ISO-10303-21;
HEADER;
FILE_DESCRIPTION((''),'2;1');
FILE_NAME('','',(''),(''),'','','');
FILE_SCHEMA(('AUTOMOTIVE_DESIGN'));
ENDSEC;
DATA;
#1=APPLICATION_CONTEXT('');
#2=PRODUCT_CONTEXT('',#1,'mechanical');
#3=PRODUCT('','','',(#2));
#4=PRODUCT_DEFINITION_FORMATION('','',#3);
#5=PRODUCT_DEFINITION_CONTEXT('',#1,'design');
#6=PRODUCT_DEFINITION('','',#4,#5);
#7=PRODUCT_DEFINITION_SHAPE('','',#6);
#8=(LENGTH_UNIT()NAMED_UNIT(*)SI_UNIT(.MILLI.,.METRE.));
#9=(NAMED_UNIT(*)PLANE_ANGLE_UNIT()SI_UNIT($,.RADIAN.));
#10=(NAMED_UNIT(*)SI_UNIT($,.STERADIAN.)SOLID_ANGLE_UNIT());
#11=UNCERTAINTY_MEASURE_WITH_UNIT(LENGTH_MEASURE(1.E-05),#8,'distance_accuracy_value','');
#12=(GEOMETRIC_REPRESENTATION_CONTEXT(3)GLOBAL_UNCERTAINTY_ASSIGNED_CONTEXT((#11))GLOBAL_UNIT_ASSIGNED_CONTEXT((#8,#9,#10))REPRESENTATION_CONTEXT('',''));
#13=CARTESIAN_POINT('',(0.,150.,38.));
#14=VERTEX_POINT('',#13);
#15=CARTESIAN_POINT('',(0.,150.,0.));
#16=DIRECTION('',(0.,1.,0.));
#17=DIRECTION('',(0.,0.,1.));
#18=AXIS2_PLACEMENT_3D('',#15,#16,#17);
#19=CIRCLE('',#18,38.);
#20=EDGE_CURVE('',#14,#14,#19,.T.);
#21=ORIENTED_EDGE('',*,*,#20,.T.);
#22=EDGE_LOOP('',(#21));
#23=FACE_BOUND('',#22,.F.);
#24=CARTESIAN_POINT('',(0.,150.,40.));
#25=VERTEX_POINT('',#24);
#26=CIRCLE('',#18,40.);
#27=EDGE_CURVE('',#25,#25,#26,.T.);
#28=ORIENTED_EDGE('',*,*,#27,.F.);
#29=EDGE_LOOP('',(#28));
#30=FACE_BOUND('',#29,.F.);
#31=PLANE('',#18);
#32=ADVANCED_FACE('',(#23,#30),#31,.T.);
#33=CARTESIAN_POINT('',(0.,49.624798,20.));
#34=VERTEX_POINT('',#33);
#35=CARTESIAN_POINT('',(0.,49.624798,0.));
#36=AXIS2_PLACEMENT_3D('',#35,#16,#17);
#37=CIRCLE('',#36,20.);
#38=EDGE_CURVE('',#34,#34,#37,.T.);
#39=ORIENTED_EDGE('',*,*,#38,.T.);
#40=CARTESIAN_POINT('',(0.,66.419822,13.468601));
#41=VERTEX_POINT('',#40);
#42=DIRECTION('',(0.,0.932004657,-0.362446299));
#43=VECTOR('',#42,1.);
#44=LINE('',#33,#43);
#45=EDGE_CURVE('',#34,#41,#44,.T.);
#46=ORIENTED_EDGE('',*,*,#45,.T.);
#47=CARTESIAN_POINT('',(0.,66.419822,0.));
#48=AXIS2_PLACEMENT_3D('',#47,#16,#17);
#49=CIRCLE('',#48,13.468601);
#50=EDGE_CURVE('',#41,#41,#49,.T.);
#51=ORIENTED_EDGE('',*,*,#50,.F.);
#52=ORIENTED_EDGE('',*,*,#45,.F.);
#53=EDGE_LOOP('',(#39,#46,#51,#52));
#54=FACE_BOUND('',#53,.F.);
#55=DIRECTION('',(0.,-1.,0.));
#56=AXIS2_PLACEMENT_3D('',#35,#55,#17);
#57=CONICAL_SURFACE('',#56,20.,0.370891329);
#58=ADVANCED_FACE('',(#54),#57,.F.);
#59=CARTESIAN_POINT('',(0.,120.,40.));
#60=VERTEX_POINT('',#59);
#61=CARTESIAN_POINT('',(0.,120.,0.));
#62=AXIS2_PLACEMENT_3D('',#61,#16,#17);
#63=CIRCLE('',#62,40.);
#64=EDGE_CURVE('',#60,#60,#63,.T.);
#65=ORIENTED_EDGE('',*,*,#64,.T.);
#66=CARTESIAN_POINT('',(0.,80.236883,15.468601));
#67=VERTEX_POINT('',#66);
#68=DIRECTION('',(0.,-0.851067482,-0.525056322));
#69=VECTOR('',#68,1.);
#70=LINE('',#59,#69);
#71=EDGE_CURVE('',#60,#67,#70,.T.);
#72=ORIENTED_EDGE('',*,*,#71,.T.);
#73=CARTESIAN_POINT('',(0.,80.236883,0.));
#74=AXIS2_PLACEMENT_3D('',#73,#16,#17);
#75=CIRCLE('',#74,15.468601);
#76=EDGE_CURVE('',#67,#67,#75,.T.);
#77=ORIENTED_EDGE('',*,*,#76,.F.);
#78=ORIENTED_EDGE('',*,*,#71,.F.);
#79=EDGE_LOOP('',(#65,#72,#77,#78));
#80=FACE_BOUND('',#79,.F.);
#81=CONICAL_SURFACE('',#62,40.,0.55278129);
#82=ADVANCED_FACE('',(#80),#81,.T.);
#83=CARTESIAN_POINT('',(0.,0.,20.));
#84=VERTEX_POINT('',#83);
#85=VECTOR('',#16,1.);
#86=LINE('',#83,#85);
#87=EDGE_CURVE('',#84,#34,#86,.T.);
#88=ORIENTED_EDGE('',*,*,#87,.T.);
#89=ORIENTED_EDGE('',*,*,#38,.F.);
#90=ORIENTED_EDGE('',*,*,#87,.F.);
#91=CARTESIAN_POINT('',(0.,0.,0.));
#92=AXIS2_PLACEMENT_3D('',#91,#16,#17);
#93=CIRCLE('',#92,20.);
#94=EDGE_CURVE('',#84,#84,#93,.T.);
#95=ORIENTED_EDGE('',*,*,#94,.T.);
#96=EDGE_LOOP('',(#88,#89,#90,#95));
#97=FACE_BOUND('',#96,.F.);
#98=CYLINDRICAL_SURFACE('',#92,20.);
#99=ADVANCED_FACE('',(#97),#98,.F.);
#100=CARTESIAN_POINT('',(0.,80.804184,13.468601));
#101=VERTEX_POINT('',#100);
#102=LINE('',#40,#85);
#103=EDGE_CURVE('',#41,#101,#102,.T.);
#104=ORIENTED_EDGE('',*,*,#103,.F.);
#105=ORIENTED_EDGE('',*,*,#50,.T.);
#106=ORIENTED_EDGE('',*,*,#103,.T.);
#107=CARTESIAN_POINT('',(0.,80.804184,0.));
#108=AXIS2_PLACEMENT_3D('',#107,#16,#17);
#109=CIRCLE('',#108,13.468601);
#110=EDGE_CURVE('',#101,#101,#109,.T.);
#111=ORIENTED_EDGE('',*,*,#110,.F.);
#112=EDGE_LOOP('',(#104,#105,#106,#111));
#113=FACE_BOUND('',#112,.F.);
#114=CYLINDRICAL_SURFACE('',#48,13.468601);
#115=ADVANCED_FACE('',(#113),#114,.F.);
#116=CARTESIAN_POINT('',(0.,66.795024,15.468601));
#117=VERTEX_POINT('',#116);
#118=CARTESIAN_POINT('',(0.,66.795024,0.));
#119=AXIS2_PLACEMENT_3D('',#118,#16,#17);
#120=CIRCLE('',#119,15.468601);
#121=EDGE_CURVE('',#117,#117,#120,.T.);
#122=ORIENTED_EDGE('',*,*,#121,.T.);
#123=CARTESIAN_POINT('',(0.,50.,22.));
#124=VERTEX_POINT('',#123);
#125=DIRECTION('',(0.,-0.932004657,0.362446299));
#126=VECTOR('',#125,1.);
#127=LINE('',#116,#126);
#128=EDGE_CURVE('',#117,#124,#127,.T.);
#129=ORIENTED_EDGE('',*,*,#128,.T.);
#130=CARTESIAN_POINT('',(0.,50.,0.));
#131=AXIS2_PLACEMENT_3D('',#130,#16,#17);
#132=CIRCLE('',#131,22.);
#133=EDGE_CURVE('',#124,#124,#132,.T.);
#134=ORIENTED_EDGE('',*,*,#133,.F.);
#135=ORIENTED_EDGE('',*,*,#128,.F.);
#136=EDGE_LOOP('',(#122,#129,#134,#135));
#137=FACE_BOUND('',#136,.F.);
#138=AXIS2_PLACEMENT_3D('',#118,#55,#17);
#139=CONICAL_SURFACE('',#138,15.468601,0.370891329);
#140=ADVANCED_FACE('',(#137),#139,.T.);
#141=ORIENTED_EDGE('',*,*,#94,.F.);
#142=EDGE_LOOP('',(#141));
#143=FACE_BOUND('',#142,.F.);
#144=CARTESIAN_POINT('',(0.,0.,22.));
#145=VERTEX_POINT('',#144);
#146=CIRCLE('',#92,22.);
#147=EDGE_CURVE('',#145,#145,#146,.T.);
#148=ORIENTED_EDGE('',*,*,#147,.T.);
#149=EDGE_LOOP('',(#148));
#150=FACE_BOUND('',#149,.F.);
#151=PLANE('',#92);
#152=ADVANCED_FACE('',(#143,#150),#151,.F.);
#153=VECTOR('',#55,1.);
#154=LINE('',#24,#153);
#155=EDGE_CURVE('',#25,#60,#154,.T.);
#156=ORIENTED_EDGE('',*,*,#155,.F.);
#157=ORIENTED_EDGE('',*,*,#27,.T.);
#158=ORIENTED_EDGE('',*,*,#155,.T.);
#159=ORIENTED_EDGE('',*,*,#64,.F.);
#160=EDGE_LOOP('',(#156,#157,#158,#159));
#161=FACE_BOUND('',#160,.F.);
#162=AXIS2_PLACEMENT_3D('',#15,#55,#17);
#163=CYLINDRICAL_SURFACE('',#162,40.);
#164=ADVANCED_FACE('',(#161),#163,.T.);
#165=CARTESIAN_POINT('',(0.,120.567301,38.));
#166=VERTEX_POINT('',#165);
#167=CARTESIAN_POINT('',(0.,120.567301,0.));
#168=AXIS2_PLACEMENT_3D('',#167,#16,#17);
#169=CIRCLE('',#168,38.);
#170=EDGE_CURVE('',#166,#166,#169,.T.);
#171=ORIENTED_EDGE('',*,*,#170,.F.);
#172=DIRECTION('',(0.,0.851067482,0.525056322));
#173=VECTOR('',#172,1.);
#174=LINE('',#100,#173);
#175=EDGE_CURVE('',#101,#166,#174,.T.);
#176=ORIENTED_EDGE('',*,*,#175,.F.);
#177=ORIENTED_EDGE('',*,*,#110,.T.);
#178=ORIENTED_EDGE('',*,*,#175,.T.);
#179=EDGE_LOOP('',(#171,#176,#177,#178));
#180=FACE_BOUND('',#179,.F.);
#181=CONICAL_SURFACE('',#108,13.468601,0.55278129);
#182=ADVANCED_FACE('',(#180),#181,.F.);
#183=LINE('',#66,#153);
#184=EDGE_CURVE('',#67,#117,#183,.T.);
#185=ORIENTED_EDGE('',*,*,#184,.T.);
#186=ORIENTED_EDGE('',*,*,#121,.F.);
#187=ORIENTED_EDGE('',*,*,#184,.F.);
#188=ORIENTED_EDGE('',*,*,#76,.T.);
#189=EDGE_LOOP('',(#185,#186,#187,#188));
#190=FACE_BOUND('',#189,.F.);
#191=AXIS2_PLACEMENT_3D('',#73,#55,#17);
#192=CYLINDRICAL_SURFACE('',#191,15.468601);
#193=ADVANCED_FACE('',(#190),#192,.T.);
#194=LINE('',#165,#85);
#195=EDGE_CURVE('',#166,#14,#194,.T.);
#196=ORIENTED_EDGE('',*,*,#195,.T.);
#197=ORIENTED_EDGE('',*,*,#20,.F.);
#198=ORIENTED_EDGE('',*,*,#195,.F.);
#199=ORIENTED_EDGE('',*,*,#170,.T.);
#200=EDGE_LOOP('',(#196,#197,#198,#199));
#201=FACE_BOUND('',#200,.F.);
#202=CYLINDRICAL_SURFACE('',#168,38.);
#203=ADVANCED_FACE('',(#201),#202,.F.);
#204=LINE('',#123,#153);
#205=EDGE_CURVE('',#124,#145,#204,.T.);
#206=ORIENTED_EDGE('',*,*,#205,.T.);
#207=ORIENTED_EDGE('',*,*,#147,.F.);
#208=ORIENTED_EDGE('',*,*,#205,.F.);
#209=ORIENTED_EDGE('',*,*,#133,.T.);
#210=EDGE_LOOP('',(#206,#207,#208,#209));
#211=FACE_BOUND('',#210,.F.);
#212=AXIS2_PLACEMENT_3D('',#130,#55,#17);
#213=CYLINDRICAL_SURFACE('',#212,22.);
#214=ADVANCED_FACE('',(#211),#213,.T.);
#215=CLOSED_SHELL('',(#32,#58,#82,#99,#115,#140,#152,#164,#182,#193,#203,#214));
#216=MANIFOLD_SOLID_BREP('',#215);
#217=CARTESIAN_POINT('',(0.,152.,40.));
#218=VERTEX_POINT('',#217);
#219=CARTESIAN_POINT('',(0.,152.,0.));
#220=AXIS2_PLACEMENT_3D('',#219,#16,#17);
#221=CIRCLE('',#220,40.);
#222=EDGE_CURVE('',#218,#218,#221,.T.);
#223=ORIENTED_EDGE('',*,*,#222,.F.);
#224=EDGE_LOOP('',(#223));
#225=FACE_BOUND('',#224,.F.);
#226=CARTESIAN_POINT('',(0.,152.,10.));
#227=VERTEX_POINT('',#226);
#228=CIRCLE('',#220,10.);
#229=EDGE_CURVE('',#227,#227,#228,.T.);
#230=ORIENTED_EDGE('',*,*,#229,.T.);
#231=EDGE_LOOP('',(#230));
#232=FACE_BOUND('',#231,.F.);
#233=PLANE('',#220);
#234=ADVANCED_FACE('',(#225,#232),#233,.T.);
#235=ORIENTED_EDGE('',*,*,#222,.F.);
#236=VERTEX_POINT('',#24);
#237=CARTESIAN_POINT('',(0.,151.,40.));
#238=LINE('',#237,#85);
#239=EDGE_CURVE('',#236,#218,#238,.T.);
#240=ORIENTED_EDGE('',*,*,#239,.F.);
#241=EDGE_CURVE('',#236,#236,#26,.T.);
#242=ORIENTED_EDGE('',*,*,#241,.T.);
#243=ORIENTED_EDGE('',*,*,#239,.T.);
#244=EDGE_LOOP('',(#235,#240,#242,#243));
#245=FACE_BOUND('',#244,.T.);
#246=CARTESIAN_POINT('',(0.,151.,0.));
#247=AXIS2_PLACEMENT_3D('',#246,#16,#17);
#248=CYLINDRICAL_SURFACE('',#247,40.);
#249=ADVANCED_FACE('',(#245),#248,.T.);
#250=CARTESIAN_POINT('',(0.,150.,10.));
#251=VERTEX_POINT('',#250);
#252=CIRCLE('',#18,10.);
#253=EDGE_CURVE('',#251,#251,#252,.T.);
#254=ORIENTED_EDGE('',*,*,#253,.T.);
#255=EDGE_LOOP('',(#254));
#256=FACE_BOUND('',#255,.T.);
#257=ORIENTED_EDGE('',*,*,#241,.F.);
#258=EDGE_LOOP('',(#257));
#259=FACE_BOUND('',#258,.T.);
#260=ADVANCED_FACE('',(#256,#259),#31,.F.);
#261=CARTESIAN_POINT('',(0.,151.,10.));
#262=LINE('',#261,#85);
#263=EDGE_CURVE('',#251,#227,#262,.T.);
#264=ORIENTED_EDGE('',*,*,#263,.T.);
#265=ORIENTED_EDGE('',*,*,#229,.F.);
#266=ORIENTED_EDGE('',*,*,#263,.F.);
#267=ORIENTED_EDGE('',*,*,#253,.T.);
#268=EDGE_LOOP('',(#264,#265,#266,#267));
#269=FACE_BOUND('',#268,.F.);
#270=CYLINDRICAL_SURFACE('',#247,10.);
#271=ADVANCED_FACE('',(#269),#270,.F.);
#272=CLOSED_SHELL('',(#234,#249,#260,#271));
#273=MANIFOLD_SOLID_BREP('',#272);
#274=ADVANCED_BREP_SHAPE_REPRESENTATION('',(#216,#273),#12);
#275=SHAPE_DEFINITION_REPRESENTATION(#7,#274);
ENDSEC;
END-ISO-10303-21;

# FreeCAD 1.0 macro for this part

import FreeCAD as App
import Part
import Sketcher


def add_polygon(sketch, points):
    """Adds a closed chain of lines whose ends are joined by coincident constraints."""
    first, n = sketch.GeometryCount, len(points)
    for a, b in zip(points, points[1:] + points[:1]):
        sketch.addGeometry(Part.LineSegment(App.Vector(*a, 0), App.Vector(*b, 0)), False)
    for i in range(n):
        sketch.addConstraint(Sketcher.Constraint("Coincident", first + i, 2, first + (i + 1) % n, 1))

doc = App.newDocument("Part")
body = doc.addObject("PartDesign::Body", "Body")

sketch1 = body.newObject("Sketcher::SketchObject", "Sketch")
sketch1.AttachmentSupport = (doc.getObject("YZ_Plane"), [""])
sketch1.MapMode = "FlatFace"
add_polygon(sketch1, [(50, 22), (0, 22), (0, 20), (49.6, 20), (66.4, 13.5), (80.8, 13.5), (120.6, 38), (150, 38), (150, 40), (120, 40), (80.2, 15.5), (66.8, 15.5)])
sketch1.addConstraint([
    Sketcher.Constraint("Horizontal", 0),
    Sketcher.Constraint("Vertical", 1),
    Sketcher.Constraint("Horizontal", 2),
    Sketcher.Constraint("Horizontal", 4),
    Sketcher.Constraint("Horizontal", 6),
    Sketcher.Constraint("Vertical", 7),
    Sketcher.Constraint("Horizontal", 8),
    Sketcher.Constraint("Horizontal", 10),
    Sketcher.Constraint("PointOnObject", 0, 2, -2),
    Sketcher.Constraint("Parallel", 5, 9),
    Sketcher.Constraint("Parallel", 3, 11),
    Sketcher.Constraint("Equal", 1, 7),
    Sketcher.Constraint("Equal", 5, 9),
    Sketcher.Constraint("DistanceX", 0, 2, 0, 1, 50.0),
    Sketcher.Constraint("DistanceX", 8, 2, 8, 1, 30.0),
    Sketcher.Constraint("DistanceY", 1, 2, 1, 1, 2.0),
    Sketcher.Constraint("DistanceY", -1, 1, 0, 2, 22.0),
    Sketcher.Constraint("DistanceY", -1, 1, 5, 2, 38.0),
    Sketcher.Constraint("DistanceX", -1, 1, 6, 2, 150.0),
    Sketcher.Constraint("DistanceX", 6, 1, 6, 2, 29.432699),
    Sketcher.Constraint("DistanceX", 10, 2, 10, 1, 13.441859),
    Sketcher.Constraint("DistanceY", -1, 1, 3, 2, 13.468601),
    Sketcher.Constraint("DistanceX", 2, 2, 6, 2, 100.375202),
    Sketcher.Constraint("Distance", 3, 18.020322),
])
revolution = body.newObject("PartDesign::Revolution", "Revolution")
revolution.Profile = sketch1
revolution.ReferenceAxis = (sketch1, ["H_Axis"])
revolution.Angle = 360
body2 = doc.addObject("PartDesign::Body", "Body001")

sketch2 = body2.newObject("Sketcher::SketchObject", "Sketch001")
sketch2.AttachmentSupport = (doc.getObject("YZ_Plane001"), [""])
sketch2.MapMode = "FlatFace"
add_polygon(sketch2, [(150, 40), (150, 10), (152, 10), (152, 40)])
sketch2.addConstraint([
    Sketcher.Constraint("Vertical", 0),
    Sketcher.Constraint("Horizontal", 1),
    Sketcher.Constraint("Vertical", 2),
    Sketcher.Constraint("Horizontal", 3),
    Sketcher.Constraint("DistanceX", 1, 1, 1, 2, 2.0),
    Sketcher.Constraint("DistanceY", 0, 2, 0, 1, 30.0),
    Sketcher.Constraint("DistanceX", -1, 1, 0, 2, 150.0),
    Sketcher.Constraint("DistanceY", -1, 1, 0, 2, 10.0),
])
revolution2 = body2.newObject("PartDesign::Revolution", "Revolution001")
revolution2.Profile = sketch2
revolution2.ReferenceAxis = (sketch2, ["H_Axis"])
revolution2.Angle = 360

doc.recompute()
